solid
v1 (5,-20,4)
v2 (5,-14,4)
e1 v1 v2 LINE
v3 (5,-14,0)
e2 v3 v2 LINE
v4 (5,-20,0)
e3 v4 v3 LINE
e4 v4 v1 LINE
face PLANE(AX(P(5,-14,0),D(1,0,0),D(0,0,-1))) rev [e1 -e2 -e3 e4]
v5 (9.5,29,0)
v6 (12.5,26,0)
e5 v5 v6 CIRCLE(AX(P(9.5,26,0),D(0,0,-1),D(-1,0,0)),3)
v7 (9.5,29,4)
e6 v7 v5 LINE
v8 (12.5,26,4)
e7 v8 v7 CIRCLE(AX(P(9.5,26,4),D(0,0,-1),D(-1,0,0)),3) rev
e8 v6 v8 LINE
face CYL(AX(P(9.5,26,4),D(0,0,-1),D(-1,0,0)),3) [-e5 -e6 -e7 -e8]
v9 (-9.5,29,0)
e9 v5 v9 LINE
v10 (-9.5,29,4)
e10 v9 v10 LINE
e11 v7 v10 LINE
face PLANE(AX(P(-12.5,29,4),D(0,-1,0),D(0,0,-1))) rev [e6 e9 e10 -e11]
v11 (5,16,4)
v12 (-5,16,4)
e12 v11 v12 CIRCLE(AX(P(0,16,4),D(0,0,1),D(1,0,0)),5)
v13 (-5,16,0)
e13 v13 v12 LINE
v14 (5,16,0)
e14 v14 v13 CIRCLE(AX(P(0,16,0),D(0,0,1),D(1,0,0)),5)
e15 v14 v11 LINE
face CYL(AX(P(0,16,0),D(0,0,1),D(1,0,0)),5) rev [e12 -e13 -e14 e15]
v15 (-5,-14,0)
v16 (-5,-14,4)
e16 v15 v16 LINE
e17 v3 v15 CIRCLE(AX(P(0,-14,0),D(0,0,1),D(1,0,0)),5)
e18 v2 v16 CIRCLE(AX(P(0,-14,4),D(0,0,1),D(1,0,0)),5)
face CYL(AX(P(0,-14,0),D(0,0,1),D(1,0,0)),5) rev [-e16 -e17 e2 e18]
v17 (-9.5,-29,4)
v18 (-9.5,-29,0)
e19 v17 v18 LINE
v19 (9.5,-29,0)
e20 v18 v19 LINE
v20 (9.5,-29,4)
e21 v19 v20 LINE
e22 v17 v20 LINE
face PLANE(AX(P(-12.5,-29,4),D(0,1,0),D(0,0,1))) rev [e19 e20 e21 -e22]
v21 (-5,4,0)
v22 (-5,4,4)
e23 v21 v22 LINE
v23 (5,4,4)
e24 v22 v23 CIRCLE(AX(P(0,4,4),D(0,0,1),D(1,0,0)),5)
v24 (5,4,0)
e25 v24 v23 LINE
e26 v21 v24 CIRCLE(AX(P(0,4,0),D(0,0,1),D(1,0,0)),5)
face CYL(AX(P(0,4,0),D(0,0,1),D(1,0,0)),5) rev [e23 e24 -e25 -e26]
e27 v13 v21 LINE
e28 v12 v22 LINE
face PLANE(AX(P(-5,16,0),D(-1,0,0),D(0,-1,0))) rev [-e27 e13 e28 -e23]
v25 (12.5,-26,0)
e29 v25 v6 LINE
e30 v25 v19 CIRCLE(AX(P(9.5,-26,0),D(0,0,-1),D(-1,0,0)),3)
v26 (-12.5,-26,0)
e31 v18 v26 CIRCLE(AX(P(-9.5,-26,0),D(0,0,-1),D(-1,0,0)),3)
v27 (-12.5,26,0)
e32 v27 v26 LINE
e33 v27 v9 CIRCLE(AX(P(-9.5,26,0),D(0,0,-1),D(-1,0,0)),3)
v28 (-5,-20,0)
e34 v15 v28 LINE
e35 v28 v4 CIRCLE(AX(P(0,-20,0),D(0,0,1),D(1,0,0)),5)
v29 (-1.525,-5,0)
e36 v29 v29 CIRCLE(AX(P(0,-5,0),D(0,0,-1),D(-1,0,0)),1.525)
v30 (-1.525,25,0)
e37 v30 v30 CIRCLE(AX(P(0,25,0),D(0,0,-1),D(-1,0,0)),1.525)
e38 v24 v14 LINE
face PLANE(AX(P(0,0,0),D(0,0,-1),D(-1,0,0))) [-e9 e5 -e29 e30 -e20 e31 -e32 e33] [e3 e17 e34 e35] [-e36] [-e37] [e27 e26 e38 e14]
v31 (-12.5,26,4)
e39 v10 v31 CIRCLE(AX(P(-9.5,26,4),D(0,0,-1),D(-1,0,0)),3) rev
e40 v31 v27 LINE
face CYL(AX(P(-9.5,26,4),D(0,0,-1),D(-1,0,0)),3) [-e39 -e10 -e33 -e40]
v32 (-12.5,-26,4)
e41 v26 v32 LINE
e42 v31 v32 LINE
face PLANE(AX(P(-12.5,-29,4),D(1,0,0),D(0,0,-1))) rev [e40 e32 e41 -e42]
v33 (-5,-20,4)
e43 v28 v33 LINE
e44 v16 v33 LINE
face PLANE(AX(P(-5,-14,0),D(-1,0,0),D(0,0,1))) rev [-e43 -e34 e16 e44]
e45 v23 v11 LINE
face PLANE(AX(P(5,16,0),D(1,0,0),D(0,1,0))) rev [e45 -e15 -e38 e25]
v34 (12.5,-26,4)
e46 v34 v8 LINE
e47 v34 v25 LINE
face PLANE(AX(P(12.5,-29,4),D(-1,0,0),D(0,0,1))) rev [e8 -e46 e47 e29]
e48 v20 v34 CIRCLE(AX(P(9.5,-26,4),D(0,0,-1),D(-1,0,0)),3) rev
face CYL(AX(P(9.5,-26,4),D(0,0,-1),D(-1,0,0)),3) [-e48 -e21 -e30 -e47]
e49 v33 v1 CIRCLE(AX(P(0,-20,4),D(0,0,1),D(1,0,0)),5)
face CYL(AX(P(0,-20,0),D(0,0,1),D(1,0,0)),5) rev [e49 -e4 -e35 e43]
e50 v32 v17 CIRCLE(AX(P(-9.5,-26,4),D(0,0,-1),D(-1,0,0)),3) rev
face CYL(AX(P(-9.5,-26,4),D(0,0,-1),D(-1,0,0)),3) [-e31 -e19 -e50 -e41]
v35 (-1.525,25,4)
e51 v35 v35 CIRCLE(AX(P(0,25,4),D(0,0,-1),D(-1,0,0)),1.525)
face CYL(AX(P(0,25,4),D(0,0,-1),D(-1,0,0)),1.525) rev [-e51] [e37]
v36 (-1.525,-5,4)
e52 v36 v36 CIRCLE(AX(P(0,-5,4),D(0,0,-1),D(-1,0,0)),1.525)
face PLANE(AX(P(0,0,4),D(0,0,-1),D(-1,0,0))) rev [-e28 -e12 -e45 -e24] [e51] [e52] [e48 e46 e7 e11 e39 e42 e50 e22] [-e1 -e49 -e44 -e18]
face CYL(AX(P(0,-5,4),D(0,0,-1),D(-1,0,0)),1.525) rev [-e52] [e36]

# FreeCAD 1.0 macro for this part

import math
import FreeCAD as App
import Part
import Sketcher
Q = App.Units.Quantity


def edges_at(feature, points):
    """Names of the edges that pass closest to the given points."""
    edges = feature.Shape.Edges
    near = lambda p: min(range(len(edges)), key=lambda i: edges[i].distToShape(Part.Vertex(*p))[0])
    return sorted({f"Edge{near(p) + 1}" for p in points})

doc = App.newDocument("Part")
body = doc.addObject("PartDesign::Body", "Body")

# Sketch on XY plane
sketch1 = body.newObject("Sketcher::SketchObject", "Sketch")
sketch1.AttachmentSupport = (doc.getObject("XY_Plane"), [""])
sketch1.MapMode = "FlatFace"
sketch1.addGeometry(Part.LineSegment(App.Vector(-12, 29, 0), App.Vector(-12, -29, 0)), False)
sketch1.addGeometry(Part.LineSegment(App.Vector(-12, -29, 0), App.Vector(12, -29, 0)), False)
sketch1.addGeometry(Part.LineSegment(App.Vector(12, -29, 0), App.Vector(12, 29, 0)), False)
sketch1.addGeometry(Part.LineSegment(App.Vector(12, 29, 0), App.Vector(-12, 29, 0)), False)
sketch1.addConstraint(Sketcher.Constraint("Coincident", 0, 2, 1, 1))
sketch1.addConstraint(Sketcher.Constraint("Coincident", 1, 2, 2, 1))
sketch1.addConstraint(Sketcher.Constraint("Coincident", 2, 2, 3, 1))
sketch1.addConstraint(Sketcher.Constraint("Coincident", 3, 2, 0, 1))
sketch1.addConstraint(Sketcher.Constraint("Vertical", 0))
sketch1.addConstraint(Sketcher.Constraint("Horizontal", 1))
sketch1.addConstraint(Sketcher.Constraint("Vertical", 2))
sketch1.addConstraint(Sketcher.Constraint("Horizontal", 3))
sketch1.addConstraint(Sketcher.Constraint("Symmetric", 0, 2, 2, 2, -1, 1))
sketch1.addConstraint(Sketcher.Constraint("DistanceX", 1, 1, 1, 2, Q("25 mm")))
sketch1.addConstraint(Sketcher.Constraint("DistanceY", 0, 2, 0, 1, Q("58 mm")))
pad1 = body.newObject("PartDesign::Pad", "Pad")
pad1.Profile = sketch1
pad1.Length = 4

# Sketch on XY plane
sketch2 = body.newObject("Sketcher::SketchObject", "Sketch001")
sketch2.AttachmentSupport = (doc.getObject("XY_Plane"), [""])
sketch2.MapMode = "FlatFace"
sketch2.addGeometry(Part.Circle(App.Vector(0, 25, 0), App.Vector(0, 0, 1), 1.5), False)
sketch2.addGeometry(Part.Circle(App.Vector(0, -5, 0), App.Vector(0, 0, 1), 1.5), False)
sketch2.addConstraint(Sketcher.Constraint("Equal", 0, 1))
sketch2.addConstraint(Sketcher.Constraint("PointOnObject", 0, 3, -2))
sketch2.addConstraint(Sketcher.Constraint("PointOnObject", 1, 3, -2))
sketch2.addConstraint(Sketcher.Constraint("Diameter", 0, Q("3.05 mm")))
sketch2.addConstraint(Sketcher.Constraint("DistanceY", -1, 1, 0, 3, Q("25 mm")))
sketch2.addConstraint(Sketcher.Constraint("DistanceY", 1, 3, -1, 1, Q("5 mm")))
pocket1 = body.newObject("PartDesign::Pocket", "Pocket")
pocket1.Profile = sketch2
pocket1.Type = "ThroughAll"
pocket1.Midplane = True
doc.recompute()

fillet = body.newObject("PartDesign::Fillet", "Fillet")
fillet.Base = (pocket1, edges_at(pocket1, [
    (12.5, -29, 2),
    (-12.5, -29, 2),
    (-12.5, 29, 2),
    (12.5, 29, 2),
]))
fillet.Radius = 3

# Sketch on XY plane
sketch3 = body.newObject("Sketcher::SketchObject", "Sketch002")
sketch3.AttachmentSupport = (doc.getObject("XY_Plane"), [""])
sketch3.MapMode = "FlatFace"
sketch3.AttachmentOffset = App.Placement(App.Vector(0, 0, 4), App.Rotation())
sketch3.addGeometry(Part.LineSegment(App.Vector(5, 4, 0), App.Vector(5, 16, 0)), False)
sketch3.addGeometry(Part.ArcOfCircle(Part.Circle(App.Vector(0, 16, 0), App.Vector(0, 0, 1), 5), math.radians(0), math.radians(180)), False)
sketch3.addGeometry(Part.LineSegment(App.Vector(-5, 16, 0), App.Vector(-5, 4, 0)), False)
sketch3.addGeometry(Part.ArcOfCircle(Part.Circle(App.Vector(0, 4, 0), App.Vector(0, 0, 1), 5), math.radians(180), math.radians(360)), False)
sketch3.addGeometry(Part.LineSegment(App.Vector(5, -20, 0), App.Vector(5, -14, 0)), False)
sketch3.addGeometry(Part.ArcOfCircle(Part.Circle(App.Vector(0, -14, 0), App.Vector(0, 0, 1), 5), math.radians(0), math.radians(180)), False)
sketch3.addGeometry(Part.LineSegment(App.Vector(-5, -14, 0), App.Vector(-5, -20, 0)), False)
sketch3.addGeometry(Part.ArcOfCircle(Part.Circle(App.Vector(0, -20, 0), App.Vector(0, 0, 1), 5), math.radians(180), math.radians(360)), False)
sketch3.addConstraint(Sketcher.Constraint("Tangent", 0, 2, 1, 1))
sketch3.addConstraint(Sketcher.Constraint("Tangent", 1, 2, 2, 1))
sketch3.addConstraint(Sketcher.Constraint("Tangent", 2, 2, 3, 1))
sketch3.addConstraint(Sketcher.Constraint("Tangent", 3, 2, 0, 1))
sketch3.addConstraint(Sketcher.Constraint("Tangent", 4, 2, 5, 1))
sketch3.addConstraint(Sketcher.Constraint("Tangent", 5, 2, 6, 1))
sketch3.addConstraint(Sketcher.Constraint("Tangent", 6, 2, 7, 1))
sketch3.addConstraint(Sketcher.Constraint("Tangent", 7, 2, 4, 1))
sketch3.addConstraint(Sketcher.Constraint("Vertical", 0))
sketch3.addConstraint(Sketcher.Constraint("Vertical", 2))
sketch3.addConstraint(Sketcher.Constraint("Vertical", 4))
sketch3.addConstraint(Sketcher.Constraint("Vertical", 6))
sketch3.addConstraint(Sketcher.Constraint("Equal", 3, 5))
sketch3.addConstraint(Sketcher.Constraint("PointOnObject", 1, 3, -2))
sketch3.addConstraint(Sketcher.Constraint("PointOnObject", 5, 3, -2))
sketch3.addConstraint(Sketcher.Constraint("Radius", 1, Q("5 mm")))
sketch3.addConstraint(Sketcher.Constraint("DistanceY", 0, 1, 0, 2, Q("12 mm")))
sketch3.addConstraint(Sketcher.Constraint("DistanceY", 4, 1, 4, 2, Q("6 mm")))
sketch3.addConstraint(Sketcher.Constraint("DistanceY", -1, 1, 1, 3, Q("16 mm")))
sketch3.addConstraint(Sketcher.Constraint("DistanceY", 5, 3, -1, 1, Q("14 mm")))
pocket2 = body.newObject("PartDesign::Pocket", "Pocket001")
pocket2.Profile = sketch3
pocket2.Type = "ThroughAll"
pocket2.Midplane = True

doc.recompute()
